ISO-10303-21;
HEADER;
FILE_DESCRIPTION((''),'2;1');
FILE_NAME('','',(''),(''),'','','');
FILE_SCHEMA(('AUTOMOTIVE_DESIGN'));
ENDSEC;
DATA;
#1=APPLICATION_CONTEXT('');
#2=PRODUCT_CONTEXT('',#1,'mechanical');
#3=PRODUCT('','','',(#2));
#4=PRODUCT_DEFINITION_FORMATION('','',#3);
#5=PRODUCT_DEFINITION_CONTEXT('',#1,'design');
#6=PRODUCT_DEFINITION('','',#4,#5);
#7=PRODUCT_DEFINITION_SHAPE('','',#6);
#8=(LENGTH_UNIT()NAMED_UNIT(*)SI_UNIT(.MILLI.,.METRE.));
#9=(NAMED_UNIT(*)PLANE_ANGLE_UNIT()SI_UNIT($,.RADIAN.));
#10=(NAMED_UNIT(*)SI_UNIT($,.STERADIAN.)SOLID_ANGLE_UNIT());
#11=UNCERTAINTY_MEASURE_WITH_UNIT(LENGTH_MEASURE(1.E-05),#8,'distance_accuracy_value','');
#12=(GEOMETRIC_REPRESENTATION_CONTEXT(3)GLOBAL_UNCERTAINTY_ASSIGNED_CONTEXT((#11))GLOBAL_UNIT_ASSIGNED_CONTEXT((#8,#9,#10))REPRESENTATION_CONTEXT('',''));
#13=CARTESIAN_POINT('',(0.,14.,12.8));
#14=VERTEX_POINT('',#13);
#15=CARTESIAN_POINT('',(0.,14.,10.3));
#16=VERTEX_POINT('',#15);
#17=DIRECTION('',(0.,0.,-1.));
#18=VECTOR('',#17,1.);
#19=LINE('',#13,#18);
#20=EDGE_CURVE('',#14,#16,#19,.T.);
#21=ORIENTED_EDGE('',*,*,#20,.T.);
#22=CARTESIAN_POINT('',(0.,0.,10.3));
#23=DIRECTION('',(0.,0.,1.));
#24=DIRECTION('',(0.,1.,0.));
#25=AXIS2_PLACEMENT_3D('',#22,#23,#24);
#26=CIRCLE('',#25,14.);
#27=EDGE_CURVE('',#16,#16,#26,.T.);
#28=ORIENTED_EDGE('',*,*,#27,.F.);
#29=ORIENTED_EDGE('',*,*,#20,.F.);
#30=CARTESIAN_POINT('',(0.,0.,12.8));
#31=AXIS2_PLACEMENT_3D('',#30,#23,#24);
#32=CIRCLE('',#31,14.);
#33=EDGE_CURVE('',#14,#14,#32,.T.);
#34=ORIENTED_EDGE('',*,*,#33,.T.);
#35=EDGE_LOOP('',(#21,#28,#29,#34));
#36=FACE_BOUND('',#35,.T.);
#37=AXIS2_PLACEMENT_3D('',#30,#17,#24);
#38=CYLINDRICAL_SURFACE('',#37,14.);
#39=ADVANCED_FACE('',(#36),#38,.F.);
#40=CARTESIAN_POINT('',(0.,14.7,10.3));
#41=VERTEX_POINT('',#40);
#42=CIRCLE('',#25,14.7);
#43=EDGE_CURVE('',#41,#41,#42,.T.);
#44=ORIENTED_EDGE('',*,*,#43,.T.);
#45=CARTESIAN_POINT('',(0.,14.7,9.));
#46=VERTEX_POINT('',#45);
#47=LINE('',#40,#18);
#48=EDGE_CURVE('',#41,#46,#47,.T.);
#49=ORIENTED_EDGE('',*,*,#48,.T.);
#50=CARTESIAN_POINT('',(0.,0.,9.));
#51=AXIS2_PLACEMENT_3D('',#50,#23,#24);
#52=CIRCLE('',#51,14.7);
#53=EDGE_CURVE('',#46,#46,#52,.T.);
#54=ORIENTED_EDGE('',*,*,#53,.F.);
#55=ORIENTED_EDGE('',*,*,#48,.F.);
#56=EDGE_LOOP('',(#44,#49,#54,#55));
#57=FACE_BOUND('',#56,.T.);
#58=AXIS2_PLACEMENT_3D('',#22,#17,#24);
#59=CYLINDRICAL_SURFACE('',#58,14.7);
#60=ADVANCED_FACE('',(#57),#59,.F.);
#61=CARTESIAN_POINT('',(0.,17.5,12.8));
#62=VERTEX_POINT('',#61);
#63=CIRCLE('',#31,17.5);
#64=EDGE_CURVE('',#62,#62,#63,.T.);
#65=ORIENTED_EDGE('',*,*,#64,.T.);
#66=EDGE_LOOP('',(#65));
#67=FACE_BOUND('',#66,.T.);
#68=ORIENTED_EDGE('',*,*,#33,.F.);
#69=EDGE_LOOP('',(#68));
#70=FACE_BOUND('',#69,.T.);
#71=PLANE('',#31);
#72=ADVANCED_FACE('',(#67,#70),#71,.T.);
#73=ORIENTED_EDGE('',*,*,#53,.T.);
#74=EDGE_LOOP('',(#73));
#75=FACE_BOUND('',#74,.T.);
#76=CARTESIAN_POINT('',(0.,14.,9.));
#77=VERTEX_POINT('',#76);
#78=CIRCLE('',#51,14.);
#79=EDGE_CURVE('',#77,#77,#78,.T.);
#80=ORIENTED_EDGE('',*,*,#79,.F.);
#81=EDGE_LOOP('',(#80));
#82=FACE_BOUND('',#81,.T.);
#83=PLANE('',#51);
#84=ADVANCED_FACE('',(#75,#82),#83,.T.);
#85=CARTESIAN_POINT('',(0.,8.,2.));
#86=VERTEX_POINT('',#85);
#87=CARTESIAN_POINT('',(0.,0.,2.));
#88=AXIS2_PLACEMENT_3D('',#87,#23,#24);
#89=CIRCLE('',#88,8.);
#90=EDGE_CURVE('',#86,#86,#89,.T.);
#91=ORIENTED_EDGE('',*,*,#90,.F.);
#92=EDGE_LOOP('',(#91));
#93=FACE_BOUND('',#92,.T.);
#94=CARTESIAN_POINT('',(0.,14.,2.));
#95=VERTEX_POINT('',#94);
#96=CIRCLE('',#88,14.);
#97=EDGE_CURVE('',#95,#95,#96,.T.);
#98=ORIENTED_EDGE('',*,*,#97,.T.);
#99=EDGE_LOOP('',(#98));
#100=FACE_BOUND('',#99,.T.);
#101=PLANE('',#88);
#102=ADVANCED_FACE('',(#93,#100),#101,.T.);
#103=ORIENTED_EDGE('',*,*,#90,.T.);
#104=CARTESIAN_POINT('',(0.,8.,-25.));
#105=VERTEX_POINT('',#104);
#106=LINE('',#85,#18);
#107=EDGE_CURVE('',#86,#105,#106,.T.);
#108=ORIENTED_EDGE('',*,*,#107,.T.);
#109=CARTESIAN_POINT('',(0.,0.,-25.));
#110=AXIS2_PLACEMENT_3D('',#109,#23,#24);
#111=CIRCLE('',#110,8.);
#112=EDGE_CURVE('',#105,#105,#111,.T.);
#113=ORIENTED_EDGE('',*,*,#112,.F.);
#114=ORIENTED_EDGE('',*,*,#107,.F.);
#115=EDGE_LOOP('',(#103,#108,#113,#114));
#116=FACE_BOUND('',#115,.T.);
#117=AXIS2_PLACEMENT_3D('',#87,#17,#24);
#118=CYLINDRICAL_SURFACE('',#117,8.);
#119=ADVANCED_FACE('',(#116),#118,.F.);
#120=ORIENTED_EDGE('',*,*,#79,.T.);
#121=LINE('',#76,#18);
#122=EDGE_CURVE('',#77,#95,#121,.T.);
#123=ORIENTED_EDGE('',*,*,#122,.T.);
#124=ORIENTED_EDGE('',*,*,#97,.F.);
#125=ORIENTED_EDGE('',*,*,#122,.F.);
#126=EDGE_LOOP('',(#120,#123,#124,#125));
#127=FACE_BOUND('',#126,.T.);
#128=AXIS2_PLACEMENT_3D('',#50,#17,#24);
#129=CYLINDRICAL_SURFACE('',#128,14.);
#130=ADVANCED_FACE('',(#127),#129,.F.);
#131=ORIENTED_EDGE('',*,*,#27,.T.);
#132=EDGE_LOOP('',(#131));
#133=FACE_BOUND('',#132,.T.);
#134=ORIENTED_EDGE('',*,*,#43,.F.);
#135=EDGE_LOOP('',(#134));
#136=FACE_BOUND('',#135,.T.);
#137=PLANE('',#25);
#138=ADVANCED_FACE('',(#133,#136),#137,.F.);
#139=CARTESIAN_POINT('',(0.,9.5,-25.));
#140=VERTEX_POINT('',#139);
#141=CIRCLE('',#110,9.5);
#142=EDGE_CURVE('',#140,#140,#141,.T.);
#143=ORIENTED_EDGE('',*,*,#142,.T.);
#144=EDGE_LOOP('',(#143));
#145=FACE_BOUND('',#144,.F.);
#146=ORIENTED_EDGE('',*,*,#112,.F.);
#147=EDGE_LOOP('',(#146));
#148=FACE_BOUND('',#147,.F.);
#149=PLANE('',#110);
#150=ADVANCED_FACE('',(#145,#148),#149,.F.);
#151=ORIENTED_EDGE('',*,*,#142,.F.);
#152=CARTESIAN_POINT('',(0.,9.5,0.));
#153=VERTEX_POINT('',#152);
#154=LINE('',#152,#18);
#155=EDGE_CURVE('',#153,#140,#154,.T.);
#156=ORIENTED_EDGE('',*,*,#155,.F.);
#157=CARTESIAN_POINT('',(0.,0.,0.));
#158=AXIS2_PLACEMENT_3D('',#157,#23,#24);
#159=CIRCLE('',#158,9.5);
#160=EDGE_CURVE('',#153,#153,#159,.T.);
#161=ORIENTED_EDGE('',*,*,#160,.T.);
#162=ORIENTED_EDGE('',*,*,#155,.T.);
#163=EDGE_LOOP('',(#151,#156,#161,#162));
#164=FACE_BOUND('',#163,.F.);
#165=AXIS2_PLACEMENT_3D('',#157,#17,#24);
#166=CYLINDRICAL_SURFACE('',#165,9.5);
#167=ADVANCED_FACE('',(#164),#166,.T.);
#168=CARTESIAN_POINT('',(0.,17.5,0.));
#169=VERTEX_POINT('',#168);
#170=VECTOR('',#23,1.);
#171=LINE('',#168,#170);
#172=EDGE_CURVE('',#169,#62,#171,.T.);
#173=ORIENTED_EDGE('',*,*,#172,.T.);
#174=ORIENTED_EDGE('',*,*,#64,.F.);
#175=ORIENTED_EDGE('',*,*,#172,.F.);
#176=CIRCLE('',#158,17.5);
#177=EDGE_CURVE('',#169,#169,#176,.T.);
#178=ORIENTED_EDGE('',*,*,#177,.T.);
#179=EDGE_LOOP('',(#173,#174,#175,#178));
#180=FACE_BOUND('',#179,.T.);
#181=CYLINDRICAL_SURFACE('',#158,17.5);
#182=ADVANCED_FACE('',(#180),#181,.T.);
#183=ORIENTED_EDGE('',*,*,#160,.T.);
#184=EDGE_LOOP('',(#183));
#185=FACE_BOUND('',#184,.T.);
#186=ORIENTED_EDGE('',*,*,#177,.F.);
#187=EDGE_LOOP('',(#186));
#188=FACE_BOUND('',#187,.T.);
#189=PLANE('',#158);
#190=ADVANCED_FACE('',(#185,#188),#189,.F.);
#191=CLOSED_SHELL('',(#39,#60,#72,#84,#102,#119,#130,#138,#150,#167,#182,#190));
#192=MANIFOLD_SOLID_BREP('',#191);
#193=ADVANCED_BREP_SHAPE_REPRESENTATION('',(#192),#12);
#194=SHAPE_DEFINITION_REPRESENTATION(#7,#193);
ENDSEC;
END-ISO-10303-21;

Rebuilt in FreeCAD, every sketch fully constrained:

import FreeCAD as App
import Part
import Sketcher

V = App.Vector

doc = App.newDocument("Part")
body = doc.addObject("PartDesign::Body", "Body")

# Sketch on YZ plane
sketch1 = body.newObject("Sketcher::SketchObject", "Sketch")
sketch1.AttachmentSupport = (doc.getObject("YZ_Plane"), [""])
sketch1.MapMode = "FlatFace"
sketch1.addGeometry([
    Part.LineSegment(V(8, 2, 0), V(8, -25, 0)),  # 0
    Part.LineSegment(V(8, -25, 0), V(9.5, -25, 0)),  # 1
    Part.LineSegment(V(9.5, -25, 0), V(9.5, 0, 0)),  # 2
    Part.LineSegment(V(9.5, 0, 0), V(17.5, 0, 0)),  # 3
    Part.LineSegment(V(17.5, 0, 0), V(17.5, 12.8, 0)),  # 4
    Part.LineSegment(V(17.5, 12.8, 0), V(14, 12.8, 0)),  # 5
    Part.LineSegment(V(14, 12.8, 0), V(14, 10.3, 0)),  # 6
    Part.LineSegment(V(14, 10.3, 0), V(14.7, 10.3, 0)),  # 7
    Part.LineSegment(V(14.7, 10.3, 0), V(14.7, 9, 0)),  # 8
    Part.LineSegment(V(14.7, 9, 0), V(14, 9, 0)),  # 9
    Part.LineSegment(V(14, 9, 0), V(14, 2, 0)),  # 10
    Part.LineSegment(V(14, 2, 0), V(8, 2, 0)),  # 11
], False)
sketch1.addConstraint([
    Sketcher.Constraint("Coincident", 0, 2, 1, 1),
    Sketcher.Constraint("Coincident", 1, 2, 2, 1),
    Sketcher.Constraint("Coincident", 2, 2, 3, 1),
    Sketcher.Constraint("Coincident", 3, 2, 4, 1),
    Sketcher.Constraint("Coincident", 4, 2, 5, 1),
    Sketcher.Constraint("Coincident", 5, 2, 6, 1),
    Sketcher.Constraint("Coincident", 6, 2, 7, 1),
    Sketcher.Constraint("Coincident", 7, 2, 8, 1),
    Sketcher.Constraint("Coincident", 8, 2, 9, 1),
    Sketcher.Constraint("Coincident", 9, 2, 10, 1),
    Sketcher.Constraint("Coincident", 10, 2, 11, 1),
    Sketcher.Constraint("Coincident", 11, 2, 0, 1),
    Sketcher.Constraint("Vertical", 0),
    Sketcher.Constraint("Horizontal", 1),
    Sketcher.Constraint("Vertical", 2),
    Sketcher.Constraint("Horizontal", 3),
    Sketcher.Constraint("Vertical", 4),
    Sketcher.Constraint("Horizontal", 5),
    Sketcher.Constraint("Vertical", 6),
    Sketcher.Constraint("Horizontal", 7),
    Sketcher.Constraint("Vertical", 8),
    Sketcher.Constraint("Horizontal", 9),
    Sketcher.Constraint("Vertical", 10),
    Sketcher.Constraint("Horizontal", 11),
    Sketcher.Constraint("PointOnObject", 2, 2, -1),
    Sketcher.Constraint("Vertical", 6, 2, 9, 2),
    Sketcher.Constraint("DistanceX", 3, 1, 3, 2, 8.0),
    Sketcher.Constraint("DistanceY", 2, 1, 2, 2, 25.0),
    Sketcher.Constraint("DistanceY", 10, 2, 10, 1, 7.0),
    Sketcher.Constraint("DistanceY", 6, 2, 6, 1, 2.5),
    Sketcher.Constraint("DistanceY", 8, 2, 8, 1, 1.3),
    Sketcher.Constraint("DistanceX", -1, 1, 0, 2, 8.0),
    Sketcher.Constraint("DistanceX", -1, 1, 5, 2, 14.0),
    Sketcher.Constraint("DistanceY", -1, 1, 10, 2, 2.0),
    Sketcher.Constraint("DistanceX", -1, 1, 1, 2, 9.5),
    Sketcher.Constraint("DistanceX", -1, 1, 7, 2, 14.7),
])
revolution = body.newObject("PartDesign::Revolution", "Revolution")
revolution.Profile = sketch1
revolution.ReferenceAxis = (sketch1, ["V_Axis"])
revolution.Angle = 360

doc.recompute()
